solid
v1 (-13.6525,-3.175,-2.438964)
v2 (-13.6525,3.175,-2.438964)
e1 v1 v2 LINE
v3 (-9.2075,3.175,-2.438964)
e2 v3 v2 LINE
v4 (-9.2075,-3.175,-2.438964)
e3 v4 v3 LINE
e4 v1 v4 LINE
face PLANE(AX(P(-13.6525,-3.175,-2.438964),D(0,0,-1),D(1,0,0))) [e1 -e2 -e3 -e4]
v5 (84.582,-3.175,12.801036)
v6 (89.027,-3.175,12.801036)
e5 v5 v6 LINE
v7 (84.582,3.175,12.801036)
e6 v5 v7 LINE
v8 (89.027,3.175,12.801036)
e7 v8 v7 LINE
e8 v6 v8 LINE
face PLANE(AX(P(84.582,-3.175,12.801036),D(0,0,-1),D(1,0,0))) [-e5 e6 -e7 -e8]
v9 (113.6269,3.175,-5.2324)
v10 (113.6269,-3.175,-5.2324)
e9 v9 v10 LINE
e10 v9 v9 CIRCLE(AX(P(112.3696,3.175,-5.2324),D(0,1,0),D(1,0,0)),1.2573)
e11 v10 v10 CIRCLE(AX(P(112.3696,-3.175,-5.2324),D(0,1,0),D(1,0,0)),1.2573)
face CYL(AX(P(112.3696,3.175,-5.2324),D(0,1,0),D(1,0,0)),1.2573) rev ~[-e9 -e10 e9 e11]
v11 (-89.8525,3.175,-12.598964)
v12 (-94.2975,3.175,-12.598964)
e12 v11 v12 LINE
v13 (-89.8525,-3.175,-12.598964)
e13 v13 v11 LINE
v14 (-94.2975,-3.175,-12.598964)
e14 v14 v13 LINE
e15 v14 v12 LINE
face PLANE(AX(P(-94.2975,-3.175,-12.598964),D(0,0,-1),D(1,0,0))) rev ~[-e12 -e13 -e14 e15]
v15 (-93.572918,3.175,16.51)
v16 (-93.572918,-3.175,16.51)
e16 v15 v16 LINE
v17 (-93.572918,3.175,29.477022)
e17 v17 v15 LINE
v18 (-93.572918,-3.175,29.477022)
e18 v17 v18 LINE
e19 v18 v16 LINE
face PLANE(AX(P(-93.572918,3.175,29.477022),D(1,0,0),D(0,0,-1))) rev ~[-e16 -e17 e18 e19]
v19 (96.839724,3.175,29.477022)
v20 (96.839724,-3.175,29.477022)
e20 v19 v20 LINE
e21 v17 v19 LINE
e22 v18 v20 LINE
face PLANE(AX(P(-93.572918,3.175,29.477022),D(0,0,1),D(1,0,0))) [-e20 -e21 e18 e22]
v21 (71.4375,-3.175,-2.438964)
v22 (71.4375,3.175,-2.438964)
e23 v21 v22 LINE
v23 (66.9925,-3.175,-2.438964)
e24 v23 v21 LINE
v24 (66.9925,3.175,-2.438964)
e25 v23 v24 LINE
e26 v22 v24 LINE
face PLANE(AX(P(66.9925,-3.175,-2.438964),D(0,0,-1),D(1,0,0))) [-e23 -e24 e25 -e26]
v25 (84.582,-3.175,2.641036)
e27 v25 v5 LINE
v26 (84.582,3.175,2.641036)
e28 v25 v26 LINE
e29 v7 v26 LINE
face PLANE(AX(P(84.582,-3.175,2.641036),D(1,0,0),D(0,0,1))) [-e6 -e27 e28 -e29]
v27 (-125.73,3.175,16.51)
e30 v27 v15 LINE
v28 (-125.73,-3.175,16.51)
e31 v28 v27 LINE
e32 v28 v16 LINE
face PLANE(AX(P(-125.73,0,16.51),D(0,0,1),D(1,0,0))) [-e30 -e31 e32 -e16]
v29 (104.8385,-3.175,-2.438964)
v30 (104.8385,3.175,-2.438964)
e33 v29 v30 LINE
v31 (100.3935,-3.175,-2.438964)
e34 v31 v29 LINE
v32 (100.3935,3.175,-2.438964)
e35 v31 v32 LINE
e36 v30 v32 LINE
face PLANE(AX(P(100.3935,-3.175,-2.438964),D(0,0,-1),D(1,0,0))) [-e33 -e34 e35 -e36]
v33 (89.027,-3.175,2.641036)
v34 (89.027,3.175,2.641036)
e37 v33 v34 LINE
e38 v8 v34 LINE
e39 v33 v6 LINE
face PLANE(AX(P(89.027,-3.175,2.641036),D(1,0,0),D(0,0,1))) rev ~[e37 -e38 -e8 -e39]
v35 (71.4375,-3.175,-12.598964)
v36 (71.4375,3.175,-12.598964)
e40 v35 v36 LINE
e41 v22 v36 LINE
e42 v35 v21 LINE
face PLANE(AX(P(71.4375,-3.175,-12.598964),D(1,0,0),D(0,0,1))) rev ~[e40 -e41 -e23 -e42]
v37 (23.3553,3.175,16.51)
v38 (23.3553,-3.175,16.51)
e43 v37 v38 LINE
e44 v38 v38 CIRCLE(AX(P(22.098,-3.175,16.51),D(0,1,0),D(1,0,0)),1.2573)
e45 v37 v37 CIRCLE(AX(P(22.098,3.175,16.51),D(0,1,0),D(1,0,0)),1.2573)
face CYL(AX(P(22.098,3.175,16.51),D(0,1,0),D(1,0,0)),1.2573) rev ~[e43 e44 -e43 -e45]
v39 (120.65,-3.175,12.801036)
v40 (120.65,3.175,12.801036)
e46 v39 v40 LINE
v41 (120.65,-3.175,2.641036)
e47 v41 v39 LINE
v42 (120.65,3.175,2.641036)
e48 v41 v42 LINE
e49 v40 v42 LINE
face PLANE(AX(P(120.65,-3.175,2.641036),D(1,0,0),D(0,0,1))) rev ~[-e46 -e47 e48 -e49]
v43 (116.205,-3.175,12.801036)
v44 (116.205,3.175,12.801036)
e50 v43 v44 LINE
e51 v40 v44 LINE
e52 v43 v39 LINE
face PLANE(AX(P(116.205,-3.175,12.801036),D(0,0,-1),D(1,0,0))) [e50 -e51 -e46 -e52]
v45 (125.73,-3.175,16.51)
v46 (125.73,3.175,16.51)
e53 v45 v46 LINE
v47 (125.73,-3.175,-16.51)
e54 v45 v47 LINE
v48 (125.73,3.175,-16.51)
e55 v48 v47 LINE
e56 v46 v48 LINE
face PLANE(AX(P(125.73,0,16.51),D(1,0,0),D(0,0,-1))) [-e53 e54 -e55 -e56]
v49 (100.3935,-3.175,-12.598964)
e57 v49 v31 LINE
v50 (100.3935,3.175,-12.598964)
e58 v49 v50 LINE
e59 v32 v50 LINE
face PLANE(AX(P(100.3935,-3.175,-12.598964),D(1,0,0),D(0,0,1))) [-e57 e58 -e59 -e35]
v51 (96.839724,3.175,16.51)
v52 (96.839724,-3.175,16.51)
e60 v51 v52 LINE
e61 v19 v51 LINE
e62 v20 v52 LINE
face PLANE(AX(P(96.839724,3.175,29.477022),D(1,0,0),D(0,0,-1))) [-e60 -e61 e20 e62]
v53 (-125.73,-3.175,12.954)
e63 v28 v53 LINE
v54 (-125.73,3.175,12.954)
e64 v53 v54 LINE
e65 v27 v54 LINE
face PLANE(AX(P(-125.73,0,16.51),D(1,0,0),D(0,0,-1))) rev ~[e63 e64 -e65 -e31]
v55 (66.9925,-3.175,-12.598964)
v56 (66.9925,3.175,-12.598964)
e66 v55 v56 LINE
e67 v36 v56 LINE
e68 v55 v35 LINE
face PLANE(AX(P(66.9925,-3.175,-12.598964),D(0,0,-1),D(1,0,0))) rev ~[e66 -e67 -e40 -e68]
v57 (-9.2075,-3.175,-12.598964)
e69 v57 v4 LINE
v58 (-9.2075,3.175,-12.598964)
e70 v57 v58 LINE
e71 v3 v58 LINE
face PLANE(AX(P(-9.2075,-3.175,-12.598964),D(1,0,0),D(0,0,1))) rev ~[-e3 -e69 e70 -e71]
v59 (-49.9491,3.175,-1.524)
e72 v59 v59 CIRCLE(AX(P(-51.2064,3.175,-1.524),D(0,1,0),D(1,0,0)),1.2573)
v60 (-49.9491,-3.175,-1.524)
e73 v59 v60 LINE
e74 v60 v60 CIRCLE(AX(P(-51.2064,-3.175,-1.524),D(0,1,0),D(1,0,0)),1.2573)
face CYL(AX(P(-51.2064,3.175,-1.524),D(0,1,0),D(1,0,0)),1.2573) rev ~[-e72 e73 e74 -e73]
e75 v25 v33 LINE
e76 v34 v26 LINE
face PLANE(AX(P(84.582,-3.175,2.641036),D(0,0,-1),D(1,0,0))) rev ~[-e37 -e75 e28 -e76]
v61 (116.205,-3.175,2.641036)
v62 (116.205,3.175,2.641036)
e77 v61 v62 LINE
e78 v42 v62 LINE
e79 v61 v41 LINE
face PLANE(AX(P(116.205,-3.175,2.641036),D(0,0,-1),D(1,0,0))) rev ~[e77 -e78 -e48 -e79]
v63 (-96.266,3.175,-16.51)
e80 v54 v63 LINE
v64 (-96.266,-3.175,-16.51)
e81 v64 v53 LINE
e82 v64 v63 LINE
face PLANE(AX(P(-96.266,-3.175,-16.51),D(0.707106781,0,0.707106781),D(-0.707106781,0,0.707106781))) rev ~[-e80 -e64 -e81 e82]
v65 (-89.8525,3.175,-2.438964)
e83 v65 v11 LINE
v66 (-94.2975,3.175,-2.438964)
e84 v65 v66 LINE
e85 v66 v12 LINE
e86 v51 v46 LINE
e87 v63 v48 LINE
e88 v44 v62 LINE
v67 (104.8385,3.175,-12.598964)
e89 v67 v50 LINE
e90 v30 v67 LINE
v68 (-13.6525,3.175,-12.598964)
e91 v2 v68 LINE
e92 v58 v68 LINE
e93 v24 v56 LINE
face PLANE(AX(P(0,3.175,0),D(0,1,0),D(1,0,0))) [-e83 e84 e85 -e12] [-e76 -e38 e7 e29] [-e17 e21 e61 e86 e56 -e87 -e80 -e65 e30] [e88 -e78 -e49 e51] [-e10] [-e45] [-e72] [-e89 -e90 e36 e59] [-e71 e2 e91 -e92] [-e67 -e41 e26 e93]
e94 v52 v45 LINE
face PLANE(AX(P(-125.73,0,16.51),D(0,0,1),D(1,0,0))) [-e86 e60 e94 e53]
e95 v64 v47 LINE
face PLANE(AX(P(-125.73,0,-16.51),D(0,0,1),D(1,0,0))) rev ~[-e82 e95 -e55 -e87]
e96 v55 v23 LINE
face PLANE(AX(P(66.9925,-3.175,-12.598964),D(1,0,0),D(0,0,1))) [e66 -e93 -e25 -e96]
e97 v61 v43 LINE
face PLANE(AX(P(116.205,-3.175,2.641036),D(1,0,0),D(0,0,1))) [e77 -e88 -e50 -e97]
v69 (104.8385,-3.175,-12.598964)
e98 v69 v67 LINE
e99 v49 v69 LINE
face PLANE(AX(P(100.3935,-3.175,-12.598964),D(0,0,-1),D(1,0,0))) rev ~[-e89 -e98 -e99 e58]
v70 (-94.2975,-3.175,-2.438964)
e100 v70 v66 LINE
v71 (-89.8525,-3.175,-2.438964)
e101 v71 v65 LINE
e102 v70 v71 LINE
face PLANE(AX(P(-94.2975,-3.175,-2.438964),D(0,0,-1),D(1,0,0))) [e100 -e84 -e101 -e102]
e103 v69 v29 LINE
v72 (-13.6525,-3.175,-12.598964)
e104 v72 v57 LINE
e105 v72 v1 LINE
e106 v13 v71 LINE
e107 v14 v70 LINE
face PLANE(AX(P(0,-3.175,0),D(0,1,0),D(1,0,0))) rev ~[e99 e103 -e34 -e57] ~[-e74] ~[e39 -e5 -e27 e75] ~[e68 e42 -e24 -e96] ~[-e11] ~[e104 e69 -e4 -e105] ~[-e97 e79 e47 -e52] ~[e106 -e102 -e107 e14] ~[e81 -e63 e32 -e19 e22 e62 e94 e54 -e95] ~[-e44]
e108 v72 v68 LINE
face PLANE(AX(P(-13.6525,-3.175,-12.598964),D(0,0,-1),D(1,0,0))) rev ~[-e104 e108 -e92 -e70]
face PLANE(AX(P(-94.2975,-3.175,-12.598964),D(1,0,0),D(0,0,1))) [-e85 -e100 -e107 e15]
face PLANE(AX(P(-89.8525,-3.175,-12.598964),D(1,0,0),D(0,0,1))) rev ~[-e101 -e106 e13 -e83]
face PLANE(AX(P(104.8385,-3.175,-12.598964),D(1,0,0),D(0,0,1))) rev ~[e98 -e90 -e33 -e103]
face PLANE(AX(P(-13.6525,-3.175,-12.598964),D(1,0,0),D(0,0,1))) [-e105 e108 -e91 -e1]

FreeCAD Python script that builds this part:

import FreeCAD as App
import Part
import Sketcher
Q = App.Units.Quantity

doc = App.newDocument("Part")
body = doc.addObject("PartDesign::Body", "Body")

# Sketch on XZ plane
sketch1 = body.newObject("Sketcher::SketchObject", "Sketch")
sketch1.AttachmentSupport = (doc.getObject("XZ_Plane"), [""])
sketch1.MapMode = "FlatFace"
sketch1.addGeometry([
    Part.LineSegment(App.Vector(-126, -17, 0), App.Vector(-126, 17, 0)),
    Part.LineSegment(App.Vector(-126, 17, 0), App.Vector(126, 17, 0)),
    Part.LineSegment(App.Vector(126, 17, 0), App.Vector(126, -17, 0)),
    Part.LineSegment(App.Vector(126, -17, 0), App.Vector(-126, -17, 0)),
], False)
sketch1.addConstraint([
    Sketcher.Constraint("Coincident", 0, 2, 1, 1),
    Sketcher.Constraint("Coincident", 1, 2, 2, 1),
    Sketcher.Constraint("Coincident", 2, 2, 3, 1),
    Sketcher.Constraint("Coincident", 3, 2, 0, 1),
    Sketcher.Constraint("Vertical", 0),
    Sketcher.Constraint("Horizontal", 1),
    Sketcher.Constraint("Vertical", 2),
    Sketcher.Constraint("Horizontal", 3),
    Sketcher.Constraint("Symmetric", 0, 2, 2, 2, -1, 1),
    Sketcher.Constraint("DistanceX", 1, 1, 1, 2, Q("9.9 in")),
    Sketcher.Constraint("DistanceY", 0, 1, 0, 2, Q("1.3 in")),
])
pad1 = body.newObject("PartDesign::Pad", "Pad")
pad1.Profile = sketch1
pad1.Length = Q("0.25 in")
pad1.Midplane = True

# Sketch on XZ plane
sketch2 = body.newObject("Sketcher::SketchObject", "Sketch001")
sketch2.AttachmentSupport = (doc.getObject("XZ_Plane"), [""])
sketch2.MapMode = "FlatFace"
sketch2.AttachmentOffset = App.Placement(App.Vector(0, 0, 0.125 * 25.4), App.Rotation())
sketch2.addGeometry([
    Part.LineSegment(App.Vector(-96, -17, 0), App.Vector(-126, 13, 0)),
    Part.LineSegment(App.Vector(-126, 13, 0), App.Vector(-126, -17, 0)),
    Part.LineSegment(App.Vector(-126, -17, 0), App.Vector(-96, -17, 0)),
], False)
sketch2.addConstraint([
    Sketcher.Constraint("Coincident", 0, 2, 1, 1),
    Sketcher.Constraint("Coincident", 1, 2, 2, 1),
    Sketcher.Constraint("Coincident", 2, 2, 0, 1),
    Sketcher.Constraint("Vertical", 1),
    Sketcher.Constraint("Horizontal", 2),
    Sketcher.Constraint("Equal", 2, 1),
    Sketcher.Constraint("DistanceX", 2, 1, 2, 2, Q("1.16 in")),
    Sketcher.Constraint("DistanceX", 0, 2, -1, 1, Q("4.95 in")),
    Sketcher.Constraint("DistanceY", -1, 1, 0, 2, Q("0.51 in")),
])
pocket1 = body.newObject("PartDesign::Pocket", "Pocket")
pocket1.Profile = sketch2
pocket1.Type = "ThroughAll"

# Sketch on XZ plane
sketch3 = body.newObject("Sketcher::SketchObject", "Sketch002")
sketch3.AttachmentSupport = (doc.getObject("XZ_Plane"), [""])
sketch3.MapMode = "FlatFace"
sketch3.AttachmentOffset = App.Placement(App.Vector(0, 0, -0.125 * 25.4), App.Rotation())
sketch3.addGeometry([
    Part.LineSegment(App.Vector(-94, 17, 0), App.Vector(-94, 29, 0)),
    Part.LineSegment(App.Vector(-94, 29, 0), App.Vector(97, 29, 0)),
    Part.LineSegment(App.Vector(97, 29, 0), App.Vector(97, 17, 0)),
    Part.LineSegment(App.Vector(97, 17, 0), App.Vector(-94, 17, 0)),
], False)
sketch3.addConstraint([
    Sketcher.Constraint("Coincident", 0, 2, 1, 1),
    Sketcher.Constraint("Coincident", 1, 2, 2, 1),
    Sketcher.Constraint("Coincident", 2, 2, 3, 1),
    Sketcher.Constraint("Coincident", 3, 2, 0, 1),
    Sketcher.Constraint("Vertical", 0),
    Sketcher.Constraint("Horizontal", 1),
    Sketcher.Constraint("Vertical", 2),
    Sketcher.Constraint("Horizontal", 3),
    Sketcher.Constraint("DistanceY", -1, 1, 2, 2, Q("0.65 in")),
    Sketcher.Constraint("DistanceY", 0, 1, 0, 2, Q("12.967022 mm")),
    Sketcher.Constraint("DistanceX", 1, 1, 1, 2, Q("190.412642 mm")),
    Sketcher.Constraint("DistanceX", 0, 2, -1, 1, Q("93.572918 mm")),
])
pad2 = body.newObject("PartDesign::Pad", "Pad001")
pad2.Profile = sketch3
pad2.Length = Q("0.25 in")

# Sketch on XZ plane
sketch4 = body.newObject("Sketcher::SketchObject", "Sketch003")
sketch4.AttachmentSupport = (doc.getObject("XZ_Plane"), [""])
sketch4.MapMode = "FlatFace"
sketch4.AttachmentOffset = App.Placement(App.Vector(0, 0, -0.125 * 25.4), App.Rotation())
sketch4.addGeometry([
    Part.Circle(App.Vector(112.4, -5.2, 0), App.Vector(0, 0, 1), 1.3),
    Part.Circle(App.Vector(22.1, 16.5, 0), App.Vector(0, 0, 1), 1.3),
    Part.Circle(App.Vector(-51.2, -1.5, 0), App.Vector(0, 0, 1), 1.3),
], False)
sketch4.addConstraint([
    Sketcher.Constraint("Equal", 0, 1),
    Sketcher.Constraint("Equal", 1, 2),
    Sketcher.Constraint("Diameter", 0, Q("0.099 in")),
    Sketcher.Constraint("DistanceX", -1, 1, 1, 3, Q("0.87 in")),
    Sketcher.Constraint("DistanceY", -1, 1, 1, 3, Q("0.65 in")),
    Sketcher.Constraint("DistanceY", 2, 3, -1, 1, Q("0.06 in")),
    Sketcher.Constraint("DistanceX", 2, 3, 0, 3, Q("6.44 in")),
    Sketcher.Constraint("DistanceX", -1, 1, 0, 3, Q("4.424 in")),
    Sketcher.Constraint("DistanceY", 0, 3, -1, 1, Q("0.206 in")),
])
pocket2 = body.newObject("PartDesign::Pocket", "Pocket001")
pocket2.Profile = sketch4
pocket2.Type = "ThroughAll"
pocket2.Reversed = True

# Sketch on XZ plane
sketch5 = body.newObject("Sketcher::SketchObject", "Sketch004")
sketch5.AttachmentSupport = (doc.getObject("XZ_Plane"), [""])
sketch5.MapMode = "FlatFace"
sketch5.AttachmentOffset = App.Placement(App.Vector(0, 0, 0.125 * 25.4), App.Rotation())
sketch5.addGeometry([
    Part.LineSegment(App.Vector(84.6, 12.8, 0), App.Vector(84.6, 2.6, 0)),  # 0
    Part.LineSegment(App.Vector(84.6, 2.6, 0), App.Vector(89, 2.6, 0)),  # 1
    Part.LineSegment(App.Vector(89, 2.6, 0), App.Vector(89, 12.8, 0)),  # 2
    Part.LineSegment(App.Vector(89, 12.8, 0), App.Vector(84.6, 12.8, 0)),  # 3
    Part.LineSegment(App.Vector(116.2, 12.8, 0), App.Vector(116.2, 2.6, 0)),  # 4
    Part.LineSegment(App.Vector(116.2, 2.6, 0), App.Vector(120.7, 2.6, 0)),  # 5
    Part.LineSegment(App.Vector(120.7, 2.6, 0), App.Vector(120.7, 12.8, 0)),  # 6
    Part.LineSegment(App.Vector(120.7, 12.8, 0), App.Vector(116.2, 12.8, 0)),  # 7
    Part.LineSegment(App.Vector(100.4, -2.4, 0), App.Vector(100.4, -12.6, 0)),  # 8
    Part.LineSegment(App.Vector(100.4, -12.6, 0), App.Vector(104.8, -12.6, 0)),  # 9
    Part.LineSegment(App.Vector(104.8, -12.6, 0), App.Vector(104.8, -2.4, 0)),  # 10
    Part.LineSegment(App.Vector(104.8, -2.4, 0), App.Vector(100.4, -2.4, 0)),  # 11
    Part.LineSegment(App.Vector(67, -2.4, 0), App.Vector(67, -12.6, 0)),  # 12
    Part.LineSegment(App.Vector(67, -12.6, 0), App.Vector(71.4, -12.6, 0)),  # 13
    Part.LineSegment(App.Vector(71.4, -12.6, 0), App.Vector(71.4, -2.4, 0)),  # 14
    Part.LineSegment(App.Vector(71.4, -2.4, 0), App.Vector(67, -2.4, 0)),  # 15
    Part.LineSegment(App.Vector(-13.7, -2.4, 0), App.Vector(-13.7, -12.6, 0)),  # 16
    Part.LineSegment(App.Vector(-13.7, -12.6, 0), App.Vector(-9.2, -12.6, 0)),  # 17
    Part.LineSegment(App.Vector(-9.2, -12.6, 0), App.Vector(-9.2, -2.4, 0)),  # 18
    Part.LineSegment(App.Vector(-9.2, -2.4, 0), App.Vector(-13.7, -2.4, 0)),  # 19
    Part.LineSegment(App.Vector(-94.3, -2.4, 0), App.Vector(-94.3, -12.6, 0)),  # 20
    Part.LineSegment(App.Vector(-94.3, -12.6, 0), App.Vector(-89.9, -12.6, 0)),  # 21
    Part.LineSegment(App.Vector(-89.9, -12.6, 0), App.Vector(-89.9, -2.4, 0)),  # 22
    Part.LineSegment(App.Vector(-89.9, -2.4, 0), App.Vector(-94.3, -2.4, 0)),  # 23
], False)
sketch5.addConstraint([
    Sketcher.Constraint("Coincident", 0, 2, 1, 1),
    Sketcher.Constraint("Coincident", 1, 2, 2, 1),
    Sketcher.Constraint("Coincident", 2, 2, 3, 1),
    Sketcher.Constraint("Coincident", 3, 2, 0, 1),
    Sketcher.Constraint("Coincident", 4, 2, 5, 1),
    Sketcher.Constraint("Coincident", 5, 2, 6, 1),
    Sketcher.Constraint("Coincident", 6, 2, 7, 1),
    Sketcher.Constraint("Coincident", 7, 2, 4, 1),
    Sketcher.Constraint("Coincident", 8, 2, 9, 1),
    Sketcher.Constraint("Coincident", 9, 2, 10, 1),
    Sketcher.Constraint("Coincident", 10, 2, 11, 1),
    Sketcher.Constraint("Coincident", 11, 2, 8, 1),
    Sketcher.Constraint("Coincident", 12, 2, 13, 1),
    Sketcher.Constraint("Coincident", 13, 2, 14, 1),
    Sketcher.Constraint("Coincident", 14, 2, 15, 1),
    Sketcher.Constraint("Coincident", 15, 2, 12, 1),
    Sketcher.Constraint("Coincident", 16, 2, 17, 1),
    Sketcher.Constraint("Coincident", 17, 2, 18, 1),
    Sketcher.Constraint("Coincident", 18, 2, 19, 1),
    Sketcher.Constraint("Coincident", 19, 2, 16, 1),
    Sketcher.Constraint("Coincident", 20, 2, 21, 1),
    Sketcher.Constraint("Coincident", 21, 2, 22, 1),
    Sketcher.Constraint("Coincident", 22, 2, 23, 1),
    Sketcher.Constraint("Coincident", 23, 2, 20, 1),
    Sketcher.Constraint("Vertical", 0),
    Sketcher.Constraint("Horizontal", 1),
    Sketcher.Constraint("Vertical", 2),
    Sketcher.Constraint("Horizontal", 3),
    Sketcher.Constraint("Vertical", 4),
    Sketcher.Constraint("Horizontal", 5),
    Sketcher.Constraint("Vertical", 6),
    Sketcher.Constraint("Horizontal", 7),
    Sketcher.Constraint("Vertical", 8),
    Sketcher.Constraint("Horizontal", 9),
    Sketcher.Constraint("Vertical", 10),
    Sketcher.Constraint("Horizontal", 11),
    Sketcher.Constraint("Vertical", 12),
    Sketcher.Constraint("Horizontal", 13),
    Sketcher.Constraint("Vertical", 14),
    Sketcher.Constraint("Horizontal", 15),
    Sketcher.Constraint("Vertical", 16),
    Sketcher.Constraint("Horizontal", 17),
    Sketcher.Constraint("Vertical", 18),
    Sketcher.Constraint("Horizontal", 19),
    Sketcher.Constraint("Vertical", 20),
    Sketcher.Constraint("Horizontal", 21),
    Sketcher.Constraint("Vertical", 22),
    Sketcher.Constraint("Horizontal", 23),
    Sketcher.Constraint("Horizontal", 1, 2, 4, 2),
    Sketcher.Constraint("Horizontal", 3, 2, 6, 2),
    Sketcher.Constraint("Horizontal", 9, 2, 12, 2),
    Sketcher.Constraint("Horizontal", 11, 2, 14, 2),
    Sketcher.Constraint("Horizontal", 13, 2, 16, 2),
    Sketcher.Constraint("Horizontal", 15, 2, 18, 2),
    Sketcher.Constraint("Horizontal", 17, 2, 20, 2),
    Sketcher.Constraint("Horizontal", 19, 2, 22, 2),
    Sketcher.Constraint("Equal", 3, 5),
    Sketcher.Constraint("Equal", 7, 9),
    Sketcher.Constraint("Equal", 11, 13),
    Sketcher.Constraint("Equal", 15, 17),
    Sketcher.Constraint("Equal", 19, 21),
    Sketcher.Constraint("Equal", 6, 8),
    Sketcher.Constraint("DistanceY", 0, 2, 0, 1, Q("0.4 in")),
    Sketcher.Constraint("DistanceY", 8, 2, 2, 2, Q("1 in")),
    Sketcher.Constraint("DistanceX", 17, 2, 12, 2, Q("3 in")),
    Sketcher.Constraint("DistanceX", 21, 2, 16, 2, Q("3 in")),
    Sketcher.Constraint("DistanceX", 1, 1, 1, 2, Q("0.175 in")),
    Sketcher.Constraint("DistanceX", -1, 1, 0, 2, Q("3.33 in")),
    Sketcher.Constraint("DistanceX", -1, 1, 5, 2, Q("4.75 in")),
    Sketcher.Constraint("DistanceX", 13, 2, 8, 2, Q("1.14 in")),
    Sketcher.Constraint("DistanceX", -1, 1, 13, 2, Q("2.8125 in")),
    Sketcher.Constraint("DistanceY", -1, 1, 0, 2, Q("2.641036 mm")),
])
pocket3 = body.newObject("PartDesign::Pocket", "Pocket002")
pocket3.Profile = sketch5
pocket3.Type = "ThroughAll"

doc.recompute()
